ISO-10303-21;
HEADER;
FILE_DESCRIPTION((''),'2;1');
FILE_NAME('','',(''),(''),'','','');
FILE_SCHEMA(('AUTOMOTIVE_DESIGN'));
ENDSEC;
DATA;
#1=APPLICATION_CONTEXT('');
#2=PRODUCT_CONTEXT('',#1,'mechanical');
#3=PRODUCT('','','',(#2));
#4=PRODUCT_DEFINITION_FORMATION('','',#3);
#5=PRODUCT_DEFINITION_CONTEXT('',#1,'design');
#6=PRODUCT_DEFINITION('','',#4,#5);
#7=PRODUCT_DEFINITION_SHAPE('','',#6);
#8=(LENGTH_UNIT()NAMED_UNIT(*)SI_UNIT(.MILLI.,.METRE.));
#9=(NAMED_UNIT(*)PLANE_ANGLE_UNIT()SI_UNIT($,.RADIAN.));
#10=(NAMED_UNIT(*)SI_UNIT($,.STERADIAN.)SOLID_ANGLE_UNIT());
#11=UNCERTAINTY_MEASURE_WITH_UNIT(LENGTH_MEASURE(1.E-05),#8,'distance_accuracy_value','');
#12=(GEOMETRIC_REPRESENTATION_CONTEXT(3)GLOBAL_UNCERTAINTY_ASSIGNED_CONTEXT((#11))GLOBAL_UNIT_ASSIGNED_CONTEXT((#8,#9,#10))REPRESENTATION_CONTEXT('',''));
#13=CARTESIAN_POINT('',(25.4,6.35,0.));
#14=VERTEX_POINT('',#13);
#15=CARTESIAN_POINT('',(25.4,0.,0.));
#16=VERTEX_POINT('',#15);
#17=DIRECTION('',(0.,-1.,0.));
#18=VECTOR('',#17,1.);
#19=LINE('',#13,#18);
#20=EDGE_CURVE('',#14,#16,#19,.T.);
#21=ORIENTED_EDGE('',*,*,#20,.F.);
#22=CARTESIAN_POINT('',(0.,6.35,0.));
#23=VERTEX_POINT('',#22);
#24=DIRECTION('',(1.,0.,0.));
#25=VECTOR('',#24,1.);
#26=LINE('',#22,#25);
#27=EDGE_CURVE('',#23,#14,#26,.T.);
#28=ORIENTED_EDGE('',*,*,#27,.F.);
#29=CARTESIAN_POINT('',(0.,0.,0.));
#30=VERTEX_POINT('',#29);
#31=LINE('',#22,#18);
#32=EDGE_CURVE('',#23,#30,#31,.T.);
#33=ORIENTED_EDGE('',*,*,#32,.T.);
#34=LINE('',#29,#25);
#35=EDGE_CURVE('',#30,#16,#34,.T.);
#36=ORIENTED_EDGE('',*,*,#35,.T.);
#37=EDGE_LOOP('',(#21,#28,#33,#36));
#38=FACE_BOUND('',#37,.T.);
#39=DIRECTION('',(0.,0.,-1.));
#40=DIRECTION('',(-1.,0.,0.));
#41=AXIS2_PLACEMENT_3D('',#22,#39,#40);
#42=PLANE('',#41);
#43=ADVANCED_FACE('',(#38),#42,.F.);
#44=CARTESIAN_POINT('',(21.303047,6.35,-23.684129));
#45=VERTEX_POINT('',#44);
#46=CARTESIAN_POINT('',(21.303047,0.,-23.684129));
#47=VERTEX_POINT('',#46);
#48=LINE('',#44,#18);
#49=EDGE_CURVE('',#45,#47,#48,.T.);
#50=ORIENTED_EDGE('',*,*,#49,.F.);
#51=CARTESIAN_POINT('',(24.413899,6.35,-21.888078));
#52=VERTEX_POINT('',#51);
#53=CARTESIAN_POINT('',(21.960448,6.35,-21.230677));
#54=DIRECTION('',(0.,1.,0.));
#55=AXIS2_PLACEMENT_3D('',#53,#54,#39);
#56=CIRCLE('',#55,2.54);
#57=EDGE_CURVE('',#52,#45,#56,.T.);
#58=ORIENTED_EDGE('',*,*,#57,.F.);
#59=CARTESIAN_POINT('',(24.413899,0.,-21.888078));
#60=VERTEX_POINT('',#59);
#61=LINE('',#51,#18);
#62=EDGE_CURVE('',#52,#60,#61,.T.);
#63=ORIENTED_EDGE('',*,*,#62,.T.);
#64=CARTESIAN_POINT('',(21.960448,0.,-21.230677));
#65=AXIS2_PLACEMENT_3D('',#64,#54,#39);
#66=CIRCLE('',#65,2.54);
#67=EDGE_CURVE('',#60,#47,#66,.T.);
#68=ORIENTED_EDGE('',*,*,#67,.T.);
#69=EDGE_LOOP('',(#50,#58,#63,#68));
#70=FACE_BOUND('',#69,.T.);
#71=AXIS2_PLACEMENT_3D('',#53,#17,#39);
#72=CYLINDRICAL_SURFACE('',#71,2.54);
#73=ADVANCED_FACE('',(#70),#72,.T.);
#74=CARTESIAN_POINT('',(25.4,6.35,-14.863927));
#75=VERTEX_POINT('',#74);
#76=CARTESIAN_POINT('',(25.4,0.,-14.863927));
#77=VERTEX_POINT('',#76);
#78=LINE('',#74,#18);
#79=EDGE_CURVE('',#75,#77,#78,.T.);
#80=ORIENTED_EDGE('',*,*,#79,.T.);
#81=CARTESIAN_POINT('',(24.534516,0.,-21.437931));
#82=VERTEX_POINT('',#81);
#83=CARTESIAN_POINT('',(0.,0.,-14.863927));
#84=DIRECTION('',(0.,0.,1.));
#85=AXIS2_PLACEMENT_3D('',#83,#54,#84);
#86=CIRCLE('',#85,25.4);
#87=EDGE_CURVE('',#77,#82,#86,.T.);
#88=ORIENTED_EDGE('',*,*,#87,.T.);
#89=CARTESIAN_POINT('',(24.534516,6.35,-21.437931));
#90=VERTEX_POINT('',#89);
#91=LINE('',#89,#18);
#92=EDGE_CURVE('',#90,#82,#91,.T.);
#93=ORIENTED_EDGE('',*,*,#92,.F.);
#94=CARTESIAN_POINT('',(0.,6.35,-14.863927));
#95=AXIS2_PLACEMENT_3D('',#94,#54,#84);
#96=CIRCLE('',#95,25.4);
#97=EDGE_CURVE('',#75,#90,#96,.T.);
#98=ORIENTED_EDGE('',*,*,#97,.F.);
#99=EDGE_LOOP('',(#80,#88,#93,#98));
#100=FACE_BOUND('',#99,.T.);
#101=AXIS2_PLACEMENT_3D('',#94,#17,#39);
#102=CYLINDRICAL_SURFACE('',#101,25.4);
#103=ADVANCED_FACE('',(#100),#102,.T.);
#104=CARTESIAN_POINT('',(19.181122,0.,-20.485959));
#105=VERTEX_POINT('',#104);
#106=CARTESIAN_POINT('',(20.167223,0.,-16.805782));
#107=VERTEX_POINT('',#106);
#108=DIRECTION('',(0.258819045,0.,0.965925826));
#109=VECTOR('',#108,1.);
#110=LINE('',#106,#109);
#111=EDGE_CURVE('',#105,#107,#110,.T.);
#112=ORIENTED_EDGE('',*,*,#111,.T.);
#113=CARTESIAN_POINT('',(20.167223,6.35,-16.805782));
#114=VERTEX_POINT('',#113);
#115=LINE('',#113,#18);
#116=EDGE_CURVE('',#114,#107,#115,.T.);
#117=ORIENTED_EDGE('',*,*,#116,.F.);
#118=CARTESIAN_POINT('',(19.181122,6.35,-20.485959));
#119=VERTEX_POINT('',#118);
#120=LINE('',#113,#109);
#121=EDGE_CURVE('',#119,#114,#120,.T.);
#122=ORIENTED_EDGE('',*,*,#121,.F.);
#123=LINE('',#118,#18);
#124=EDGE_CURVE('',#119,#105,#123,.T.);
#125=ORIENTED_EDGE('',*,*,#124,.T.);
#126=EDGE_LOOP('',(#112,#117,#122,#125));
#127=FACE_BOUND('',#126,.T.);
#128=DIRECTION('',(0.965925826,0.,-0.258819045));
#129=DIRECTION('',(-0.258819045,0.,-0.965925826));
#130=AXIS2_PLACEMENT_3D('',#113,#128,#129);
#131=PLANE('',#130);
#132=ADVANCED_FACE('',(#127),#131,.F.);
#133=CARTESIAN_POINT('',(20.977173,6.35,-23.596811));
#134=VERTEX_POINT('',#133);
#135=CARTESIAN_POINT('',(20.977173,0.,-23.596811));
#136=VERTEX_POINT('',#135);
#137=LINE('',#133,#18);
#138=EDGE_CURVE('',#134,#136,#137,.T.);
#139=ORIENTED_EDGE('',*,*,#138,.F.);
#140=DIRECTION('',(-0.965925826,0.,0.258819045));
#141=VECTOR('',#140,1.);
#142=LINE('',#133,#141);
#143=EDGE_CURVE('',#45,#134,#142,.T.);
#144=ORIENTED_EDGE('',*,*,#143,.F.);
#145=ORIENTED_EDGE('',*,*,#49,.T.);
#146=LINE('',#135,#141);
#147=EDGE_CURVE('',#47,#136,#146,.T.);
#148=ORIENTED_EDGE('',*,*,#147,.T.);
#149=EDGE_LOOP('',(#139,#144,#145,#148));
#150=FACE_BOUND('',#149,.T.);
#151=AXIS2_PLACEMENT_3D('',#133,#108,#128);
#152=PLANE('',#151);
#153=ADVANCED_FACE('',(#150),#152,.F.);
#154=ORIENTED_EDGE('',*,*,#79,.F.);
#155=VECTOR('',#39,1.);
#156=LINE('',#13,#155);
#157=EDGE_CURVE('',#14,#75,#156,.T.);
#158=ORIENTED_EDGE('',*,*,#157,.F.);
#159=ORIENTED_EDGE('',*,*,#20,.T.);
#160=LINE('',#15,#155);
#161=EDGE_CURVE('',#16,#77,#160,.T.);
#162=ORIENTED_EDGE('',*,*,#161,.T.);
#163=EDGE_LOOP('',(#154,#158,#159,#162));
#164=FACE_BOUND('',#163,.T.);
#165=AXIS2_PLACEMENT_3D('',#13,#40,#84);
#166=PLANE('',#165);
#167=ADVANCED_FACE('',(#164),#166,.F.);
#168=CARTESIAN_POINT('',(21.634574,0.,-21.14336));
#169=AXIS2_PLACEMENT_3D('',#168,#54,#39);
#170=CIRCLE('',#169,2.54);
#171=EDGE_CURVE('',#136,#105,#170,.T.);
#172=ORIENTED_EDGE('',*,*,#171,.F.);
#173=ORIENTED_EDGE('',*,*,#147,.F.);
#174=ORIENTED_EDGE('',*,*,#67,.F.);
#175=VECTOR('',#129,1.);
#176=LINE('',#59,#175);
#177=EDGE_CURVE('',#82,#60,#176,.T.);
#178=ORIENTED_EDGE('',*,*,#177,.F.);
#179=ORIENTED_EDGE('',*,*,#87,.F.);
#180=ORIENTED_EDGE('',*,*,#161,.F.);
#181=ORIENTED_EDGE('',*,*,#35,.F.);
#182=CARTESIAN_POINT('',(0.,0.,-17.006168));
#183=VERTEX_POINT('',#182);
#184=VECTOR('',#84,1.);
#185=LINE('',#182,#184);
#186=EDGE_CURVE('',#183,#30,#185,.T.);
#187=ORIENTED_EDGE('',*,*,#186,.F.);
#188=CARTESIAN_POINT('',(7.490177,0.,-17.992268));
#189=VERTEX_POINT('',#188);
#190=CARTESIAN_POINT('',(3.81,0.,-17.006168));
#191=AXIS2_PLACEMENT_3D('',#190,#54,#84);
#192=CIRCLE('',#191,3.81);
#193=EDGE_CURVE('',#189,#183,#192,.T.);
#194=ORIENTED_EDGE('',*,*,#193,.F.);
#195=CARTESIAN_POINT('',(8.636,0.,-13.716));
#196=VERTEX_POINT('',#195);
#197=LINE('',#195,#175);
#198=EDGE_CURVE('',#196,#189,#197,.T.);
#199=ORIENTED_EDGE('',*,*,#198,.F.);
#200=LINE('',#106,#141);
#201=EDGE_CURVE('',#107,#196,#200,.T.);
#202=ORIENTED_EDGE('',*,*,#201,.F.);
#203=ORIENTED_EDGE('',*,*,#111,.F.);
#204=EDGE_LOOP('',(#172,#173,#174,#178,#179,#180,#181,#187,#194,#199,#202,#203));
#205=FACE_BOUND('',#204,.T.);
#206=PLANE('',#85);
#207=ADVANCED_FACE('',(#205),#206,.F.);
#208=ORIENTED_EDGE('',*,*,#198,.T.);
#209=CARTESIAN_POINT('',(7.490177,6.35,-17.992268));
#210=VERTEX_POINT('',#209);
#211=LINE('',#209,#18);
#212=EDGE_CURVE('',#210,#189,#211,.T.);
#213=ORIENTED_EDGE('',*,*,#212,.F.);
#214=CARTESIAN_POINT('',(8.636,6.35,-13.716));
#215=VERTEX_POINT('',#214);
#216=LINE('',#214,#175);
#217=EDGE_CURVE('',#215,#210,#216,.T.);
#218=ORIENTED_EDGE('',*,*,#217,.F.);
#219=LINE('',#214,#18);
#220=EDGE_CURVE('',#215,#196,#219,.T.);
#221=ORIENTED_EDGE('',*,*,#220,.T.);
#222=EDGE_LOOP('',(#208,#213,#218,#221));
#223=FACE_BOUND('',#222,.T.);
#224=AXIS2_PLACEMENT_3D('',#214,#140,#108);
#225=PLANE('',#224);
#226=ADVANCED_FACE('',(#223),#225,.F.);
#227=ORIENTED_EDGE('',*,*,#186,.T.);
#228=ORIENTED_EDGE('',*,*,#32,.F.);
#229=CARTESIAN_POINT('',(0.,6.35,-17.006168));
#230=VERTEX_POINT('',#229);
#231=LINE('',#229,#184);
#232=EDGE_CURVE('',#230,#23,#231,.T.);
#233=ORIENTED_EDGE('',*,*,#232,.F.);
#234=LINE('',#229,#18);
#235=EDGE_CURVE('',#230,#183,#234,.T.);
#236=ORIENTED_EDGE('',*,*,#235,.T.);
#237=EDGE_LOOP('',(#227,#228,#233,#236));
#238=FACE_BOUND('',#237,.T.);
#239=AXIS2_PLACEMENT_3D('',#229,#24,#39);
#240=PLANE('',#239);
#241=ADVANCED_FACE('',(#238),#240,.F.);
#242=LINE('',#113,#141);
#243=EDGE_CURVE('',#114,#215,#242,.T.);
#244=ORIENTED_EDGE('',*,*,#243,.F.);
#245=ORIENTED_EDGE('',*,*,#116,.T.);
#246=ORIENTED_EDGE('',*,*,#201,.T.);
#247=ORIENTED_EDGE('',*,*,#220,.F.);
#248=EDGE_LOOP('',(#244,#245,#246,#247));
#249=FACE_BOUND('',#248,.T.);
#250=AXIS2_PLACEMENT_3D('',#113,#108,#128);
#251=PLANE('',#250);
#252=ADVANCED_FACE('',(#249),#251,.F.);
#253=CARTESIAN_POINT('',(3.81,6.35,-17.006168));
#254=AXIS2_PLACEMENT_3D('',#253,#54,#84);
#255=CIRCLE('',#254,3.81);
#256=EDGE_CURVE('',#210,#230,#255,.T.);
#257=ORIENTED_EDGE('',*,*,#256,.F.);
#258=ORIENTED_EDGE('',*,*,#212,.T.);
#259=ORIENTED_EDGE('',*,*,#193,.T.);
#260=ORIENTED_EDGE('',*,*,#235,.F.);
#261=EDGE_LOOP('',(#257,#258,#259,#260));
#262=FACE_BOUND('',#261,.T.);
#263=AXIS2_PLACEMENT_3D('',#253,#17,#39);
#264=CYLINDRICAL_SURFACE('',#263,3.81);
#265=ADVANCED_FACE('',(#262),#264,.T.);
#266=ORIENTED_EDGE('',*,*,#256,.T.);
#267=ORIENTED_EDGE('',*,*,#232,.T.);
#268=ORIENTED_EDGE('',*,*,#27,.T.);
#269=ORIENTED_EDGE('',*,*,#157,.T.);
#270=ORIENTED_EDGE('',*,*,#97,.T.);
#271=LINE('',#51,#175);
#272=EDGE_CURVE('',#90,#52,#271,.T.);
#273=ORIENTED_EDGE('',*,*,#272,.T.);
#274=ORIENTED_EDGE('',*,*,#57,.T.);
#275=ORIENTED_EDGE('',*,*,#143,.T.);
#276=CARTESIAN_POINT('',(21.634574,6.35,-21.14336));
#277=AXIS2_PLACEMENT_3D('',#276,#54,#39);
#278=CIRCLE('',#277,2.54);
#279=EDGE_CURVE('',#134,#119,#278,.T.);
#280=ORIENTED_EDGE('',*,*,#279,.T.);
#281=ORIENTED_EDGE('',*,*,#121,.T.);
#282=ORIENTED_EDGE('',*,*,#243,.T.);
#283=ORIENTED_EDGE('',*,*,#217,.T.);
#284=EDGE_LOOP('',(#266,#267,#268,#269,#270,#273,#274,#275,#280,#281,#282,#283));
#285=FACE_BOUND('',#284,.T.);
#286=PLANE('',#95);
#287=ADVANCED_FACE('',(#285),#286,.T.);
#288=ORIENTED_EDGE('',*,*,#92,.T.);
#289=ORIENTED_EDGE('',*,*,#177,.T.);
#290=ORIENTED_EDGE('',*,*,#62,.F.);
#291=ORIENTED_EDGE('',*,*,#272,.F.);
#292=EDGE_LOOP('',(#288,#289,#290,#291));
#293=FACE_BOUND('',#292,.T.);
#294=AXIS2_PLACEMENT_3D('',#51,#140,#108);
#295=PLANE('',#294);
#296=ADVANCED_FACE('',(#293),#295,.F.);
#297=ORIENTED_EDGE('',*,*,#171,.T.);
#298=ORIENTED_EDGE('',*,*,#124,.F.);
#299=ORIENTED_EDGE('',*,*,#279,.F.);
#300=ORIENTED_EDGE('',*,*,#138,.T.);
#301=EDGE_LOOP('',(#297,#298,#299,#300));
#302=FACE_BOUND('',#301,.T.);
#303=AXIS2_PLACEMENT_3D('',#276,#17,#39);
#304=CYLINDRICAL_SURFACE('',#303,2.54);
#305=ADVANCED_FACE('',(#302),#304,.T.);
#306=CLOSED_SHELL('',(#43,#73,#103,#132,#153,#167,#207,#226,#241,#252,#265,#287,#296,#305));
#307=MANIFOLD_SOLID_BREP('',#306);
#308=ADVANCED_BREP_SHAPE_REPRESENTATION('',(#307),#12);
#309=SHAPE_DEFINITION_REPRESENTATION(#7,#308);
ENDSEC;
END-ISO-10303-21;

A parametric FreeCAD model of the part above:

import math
import FreeCAD as App
import Part
import Sketcher
from FreeCAD import Vector
Q = App.Units.Quantity

doc = App.newDocument("Part")
params = doc.addObject("Spreadsheet::Sheet", "Params")
for row, (alias, value) in enumerate([
    ("sketch1_radius", "1 in"),
    ("sketch1_radius2", "0.1 in"),
    ("sketch1_radius3", "0.15 in"),
    ("sketch1_length", "0.15 in"),
    ("sketch1_length2", "0.47 in"),
    ("pad1_length", "0.25 in"),
], start=1):
    params.set(f"A{row}", alias)
    params.set(f"B{row}", "=" + value)
    params.setAlias(f"B{row}", alias)

body = doc.addObject("PartDesign::Body", "Body")

# Sketch on XZ plane
sketch1 = body.newObject("Sketcher::SketchObject", "Sketch")
sketch1.AttachmentSupport = (doc.getObject("XZ_Plane"), [""])
sketch1.MapMode = "FlatFace"
sketch1.addGeometry(Part.LineSegment(Vector(0, 0, 0), Vector(25.4, 0, 0)), False)
sketch1.addGeometry(Part.LineSegment(Vector(25.4, 0, 0), Vector(25.4, -14.863927, 0)), False)
sketch1.addGeometry(Part.ArcOfCircle(Part.Circle(Vector(0, -14.863927, 0), Vector(0, 0, 1), 25.4), math.radians(-15), math.radians(0)), False)
sketch1.addGeometry(Part.LineSegment(Vector(24.534516, -21.437931, 0), Vector(24.413899, -21.888078, 0)), False)
sketch1.addGeometry(Part.ArcOfCircle(Part.Circle(Vector(21.960448, -21.230677, 0), Vector(0, 0, 1), 2.54), math.radians(-105), math.radians(-15)), False)
sketch1.addGeometry(Part.LineSegment(Vector(21.303047, -23.684129, 0), Vector(20.977173, -23.596811, 0)), False)
sketch1.addGeometry(Part.ArcOfCircle(Part.Circle(Vector(21.634574, -21.14336, 0), Vector(0, 0, 1), 2.54), math.radians(165), math.radians(255)), False)
sketch1.addGeometry(Part.LineSegment(Vector(19.181122, -20.485959, 0), Vector(20.167223, -16.805782, 0)), False)
sketch1.addGeometry(Part.LineSegment(Vector(20.167223, -16.805782, 0), Vector(8.636, -13.716, 0)), False)
sketch1.addGeometry(Part.LineSegment(Vector(8.636, -13.716, 0), Vector(7.490177, -17.992268, 0)), False)
sketch1.addGeometry(Part.ArcOfCircle(Part.Circle(Vector(3.81, -17.006168, 0), Vector(0, 0, 1), 3.81), math.radians(180), math.radians(345)), False)
sketch1.addGeometry(Part.LineSegment(Vector(0, -17.006168, 0), Vector(0, 0, 0)), False)
sketch1.addConstraint(Sketcher.Constraint("Coincident", 0, 2, 1, 1))
sketch1.addConstraint(Sketcher.Constraint("Tangent", 1, 2, 2, 2))
sketch1.addConstraint(Sketcher.Constraint("Tangent", 2, 1, 3, 1))
sketch1.addConstraint(Sketcher.Constraint("Tangent", 3, 2, 4, 2))
sketch1.addConstraint(Sketcher.Constraint("Tangent", 4, 1, 5, 1))
sketch1.addConstraint(Sketcher.Constraint("Tangent", 5, 2, 6, 2))
sketch1.addConstraint(Sketcher.Constraint("Tangent", 6, 1, 7, 1))
sketch1.addConstraint(Sketcher.Constraint("Coincident", 7, 2, 8, 1))
sketch1.addConstraint(Sketcher.Constraint("Coincident", 8, 2, 9, 1))
sketch1.addConstraint(Sketcher.Constraint("Tangent", 9, 2, 10, 2))
sketch1.addConstraint(Sketcher.Constraint("Tangent", 10, 1, 11, 1))
sketch1.addConstraint(Sketcher.Constraint("Coincident", 11, 2, 0, 1))
sketch1.addConstraint(Sketcher.Constraint("Horizontal", 0))
sketch1.addConstraint(Sketcher.Constraint("Vertical", 1))
sketch1.addConstraint(Sketcher.Constraint("Vertical", 11))
sketch1.addConstraint(Sketcher.Constraint("Coincident", 11, 2, -1, 1))
sketch1.addConstraint(Sketcher.Constraint("Equal", 4, 6))
sketch1.addConstraint(Sketcher.Constraint("PointOnObject", 2, 3, -2))
sketch1.addConstraint(Sketcher.Constraint("Perpendicular", 3, 5))
sketch1.addConstraint(Sketcher.Constraint("Perpendicular", 5, 7))
sketch1.addConstraint(Sketcher.Constraint("Perpendicular", 7, 8))
sketch1.addConstraint(Sketcher.Constraint("Perpendicular", 8, 9))
sketch1.addConstraint(Sketcher.Constraint("Radius", 2, Q("1 in")))
sketch1.addConstraint(Sketcher.Constraint("Radius", 4, Q("0.1 in")))
sketch1.addConstraint(Sketcher.Constraint("Radius", 10, Q("0.15 in")))
sketch1.addConstraint(Sketcher.Constraint("Angle", 3, Q("-105 deg")))
sketch1.addConstraint(Sketcher.Constraint("Distance", 7, Q("0.15 in")))
sketch1.addConstraint(Sketcher.Constraint("Distance", 8, Q("0.47 in")))
sketch1.addConstraint(Sketcher.Constraint("DistanceX", -1, 1, 8, 2, Q("0.34 in")))
sketch1.addConstraint(Sketcher.Constraint("DistanceY", 8, 2, -1, 1, Q("0.54 in")))
sketch1.addConstraint(Sketcher.Constraint("DistanceX", -1, 1, 3, 2, 24.413899))
sketch1.setExpression("Constraints[22]", "Params.sketch1_radius")
sketch1.setExpression("Constraints[23]", "Params.sketch1_radius2")
sketch1.setExpression("Constraints[24]", "Params.sketch1_radius3")
sketch1.setExpression("Constraints[26]", "Params.sketch1_length")
sketch1.setExpression("Constraints[27]", "Params.sketch1_length2")
pad1 = body.newObject("PartDesign::Pad", "Pad")
pad1.Profile = sketch1
pad1.setExpression("Length", "Params.pad1_length")
pad1.Reversed = True

doc.recompute()
